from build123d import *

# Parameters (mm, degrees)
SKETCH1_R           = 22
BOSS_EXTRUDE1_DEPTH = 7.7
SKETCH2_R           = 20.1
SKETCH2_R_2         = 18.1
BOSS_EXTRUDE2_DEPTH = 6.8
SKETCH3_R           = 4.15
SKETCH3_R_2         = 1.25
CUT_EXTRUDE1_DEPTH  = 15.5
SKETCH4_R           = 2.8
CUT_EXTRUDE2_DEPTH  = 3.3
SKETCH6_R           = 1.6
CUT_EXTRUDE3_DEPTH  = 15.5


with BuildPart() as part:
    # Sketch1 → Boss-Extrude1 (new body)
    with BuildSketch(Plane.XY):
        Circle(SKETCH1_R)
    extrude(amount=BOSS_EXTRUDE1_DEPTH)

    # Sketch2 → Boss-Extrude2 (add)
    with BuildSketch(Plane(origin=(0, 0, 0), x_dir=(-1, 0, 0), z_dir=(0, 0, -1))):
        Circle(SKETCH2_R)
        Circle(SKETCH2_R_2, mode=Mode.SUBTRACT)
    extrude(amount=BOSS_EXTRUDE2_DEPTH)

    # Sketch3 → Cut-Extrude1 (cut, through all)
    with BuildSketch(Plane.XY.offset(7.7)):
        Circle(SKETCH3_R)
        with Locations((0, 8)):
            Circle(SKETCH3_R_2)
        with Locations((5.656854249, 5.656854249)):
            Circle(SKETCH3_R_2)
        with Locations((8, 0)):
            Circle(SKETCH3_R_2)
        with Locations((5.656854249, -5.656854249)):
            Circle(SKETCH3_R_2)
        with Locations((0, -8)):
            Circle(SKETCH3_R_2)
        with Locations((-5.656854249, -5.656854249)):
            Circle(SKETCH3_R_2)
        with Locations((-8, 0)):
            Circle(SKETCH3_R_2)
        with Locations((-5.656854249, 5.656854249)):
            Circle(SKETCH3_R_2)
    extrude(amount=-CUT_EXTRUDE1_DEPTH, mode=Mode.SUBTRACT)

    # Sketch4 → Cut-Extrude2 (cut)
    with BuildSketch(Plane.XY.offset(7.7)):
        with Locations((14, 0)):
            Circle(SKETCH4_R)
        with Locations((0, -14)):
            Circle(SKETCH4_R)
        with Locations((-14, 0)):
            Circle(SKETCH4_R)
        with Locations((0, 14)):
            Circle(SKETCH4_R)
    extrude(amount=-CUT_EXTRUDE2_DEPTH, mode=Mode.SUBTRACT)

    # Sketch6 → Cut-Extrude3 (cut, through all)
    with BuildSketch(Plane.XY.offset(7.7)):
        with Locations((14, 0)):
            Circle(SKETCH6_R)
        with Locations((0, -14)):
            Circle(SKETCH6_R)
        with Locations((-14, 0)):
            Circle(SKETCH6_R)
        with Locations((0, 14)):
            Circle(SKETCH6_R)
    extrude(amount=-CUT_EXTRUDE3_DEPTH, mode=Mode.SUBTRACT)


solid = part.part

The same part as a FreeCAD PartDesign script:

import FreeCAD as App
import Part
import Sketcher

V = App.Vector
Q = App.Units.Quantity

doc = App.newDocument("Part")
body = doc.addObject("PartDesign::Body", "Body")

# Sketch on XY plane
sketch1 = body.newObject("Sketcher::SketchObject", "Sketch")
sketch1.AttachmentSupport = (doc.getObject("XY_Plane"), [""])
sketch1.MapMode = "FlatFace"
sketch1.addGeometry(Part.Circle(V(0, 0, 0), V(0, 0, 1), 22), False)
sketch1.addConstraint(Sketcher.Constraint("Coincident", 0, 3, -1, 1))
sketch1.addConstraint(Sketcher.Constraint("Diameter", 0, Q("44 mm")))
pad1 = body.newObject("PartDesign::Pad", "Pad")
pad1.Profile = sketch1
pad1.Length = 7.7

# Sketch on XY plane
sketch2 = body.newObject("Sketcher::SketchObject", "Sketch001")
sketch2.AttachmentSupport = (doc.getObject("XY_Plane"), [""])
sketch2.MapMode = "FlatFace"
sketch2.addGeometry(Part.Circle(V(0, 0, 0), V(0, 0, 1), 20), False)
sketch2.addGeometry(Part.Circle(V(0, 0, 0), V(0, 0, 1), 18), False)
sketch2.addConstraint(Sketcher.Constraint("Coincident", 0, 3, -1, 1))
sketch2.addConstraint(Sketcher.Constraint("Coincident", 1, 3, -1, 1))
sketch2.addConstraint(Sketcher.Constraint("Diameter", 0, Q("40.2 mm")))
sketch2.addConstraint(Sketcher.Constraint("Diameter", 1, Q("36.2 mm")))
pad2 = body.newObject("PartDesign::Pad", "Pad001")
pad2.Profile = sketch2
pad2.Length = 6.8
pad2.Reversed = True

# Sketch on XY plane
sketch3 = body.newObject("Sketcher::SketchObject", "Sketch002")
sketch3.AttachmentSupport = (doc.getObject("XY_Plane"), [""])
sketch3.MapMode = "FlatFace"
sketch3.AttachmentOffset = App.Placement(V(0, 0, 7.7), App.Rotation())
sketch3.addGeometry(Part.Circle(V(0, 0, 0), V(0, 0, 1), 4.2), False)
sketch3.addGeometry(Part.Circle(V(0, 8, 0), V(0, 0, 1), 1.2), False)
sketch3.addGeometry(Part.Circle(V(5.7, 5.7, 0), V(0, 0, 1), 1.2), False)
sketch3.addGeometry(Part.Circle(V(8, 0, 0), V(0, 0, 1), 1.2), False)
sketch3.addGeometry(Part.Circle(V(5.7, -5.7, 0), V(0, 0, 1), 1.2), False)
sketch3.addGeometry(Part.Circle(V(0, -8, 0), V(0, 0, 1), 1.2), False)
sketch3.addGeometry(Part.Circle(V(-5.7, -5.7, 0), V(0, 0, 1), 1.2), False)
sketch3.addGeometry(Part.Circle(V(-8, 0, 0), V(0, 0, 1), 1.2), False)
sketch3.addGeometry(Part.Circle(V(-5.7, 5.7, 0), V(0, 0, 1), 1.2), False)
sketch3.addConstraint(Sketcher.Constraint("Coincident", 0, 3, -1, 1))
sketch3.addConstraint(Sketcher.Constraint("Equal", 1, 2))
sketch3.addConstraint(Sketcher.Constraint("Equal", 2, 3))
sketch3.addConstraint(Sketcher.Constraint("Equal", 3, 4))
sketch3.addConstraint(Sketcher.Constraint("Equal", 4, 5))
sketch3.addConstraint(Sketcher.Constraint("Equal", 5, 6))
sketch3.addConstraint(Sketcher.Constraint("Equal", 6, 7))
sketch3.addConstraint(Sketcher.Constraint("Equal", 7, 8))
sketch3.addConstraint(Sketcher.Constraint("Symmetric", 1, 3, 5, 3, -1, 1))
sketch3.addConstraint(Sketcher.Constraint("Symmetric", 2, 3, 6, 3, -1, 1))
sketch3.addConstraint(Sketcher.Constraint("Symmetric", 3, 3, 7, 3, -1, 1))
sketch3.addConstraint(Sketcher.Constraint("Symmetric", 4, 3, 8, 3, -1, 1))
sketch3.addConstraint(Sketcher.Constraint("Symmetric", 4, 3, 6, 3, -2))
sketch3.addConstraint(Sketcher.Constraint("PointOnObject", 1, 3, -2))
sketch3.addConstraint(Sketcher.Constraint("PointOnObject", 3, 3, -1))
sketch3.addConstraint(Sketcher.Constraint("Diameter", 0, Q("8.3 mm")))
sketch3.addConstraint(Sketcher.Constraint("Diameter", 1, Q("2.5 mm")))
sketch3.addConstraint(Sketcher.Constraint("DistanceY", -1, 1, 1, 3, Q("8 mm")))
sketch3.addConstraint(Sketcher.Constraint("DistanceX", -1, 1, 3, 3, Q("8 mm")))
sketch3.addConstraint(Sketcher.Constraint("DistanceY", 4, 3, 2, 3, Q("11.313708 mm")))
sketch3.addConstraint(Sketcher.Constraint("DistanceX", 6, 3, 4, 3, Q("11.313708 mm")))
pocket1 = body.newObject("PartDesign::Pocket", "Pocket")
pocket1.Profile = sketch3
pocket1.Type = "ThroughAll"

# Sketch on XY plane
sketch4 = body.newObject("Sketcher::SketchObject", "Sketch003")
sketch4.AttachmentSupport = (doc.getObject("XY_Plane"), [""])
sketch4.MapMode = "FlatFace"
sketch4.AttachmentOffset = App.Placement(V(0, 0, 7.7), App.Rotation())
sketch4.addGeometry(Part.Circle(V(14, 0, 0), V(0, 0, 1), 2.8), False)
sketch4.addGeometry(Part.Circle(V(0, -14, 0), V(0, 0, 1), 2.8), False)
sketch4.addGeometry(Part.Circle(V(-14, 0, 0), V(0, 0, 1), 2.8), False)
sketch4.addGeometry(Part.Circle(V(0, 14, 0), V(0, 0, 1), 2.8), False)
sketch4.addConstraint(Sketcher.Constraint("Equal", 0, 1))
sketch4.addConstraint(Sketcher.Constraint("Equal", 1, 2))
sketch4.addConstraint(Sketcher.Constraint("Equal", 2, 3))
sketch4.addConstraint(Sketcher.Constraint("Symmetric", 0, 3, 2, 3, -1, 1))
sketch4.addConstraint(Sketcher.Constraint("Symmetric", 1, 3, 3, 3, -1, 1))
sketch4.addConstraint(Sketcher.Constraint("PointOnObject", 0, 3, -1))
sketch4.addConstraint(Sketcher.Constraint("PointOnObject", 1, 3, -2))
sketch4.addConstraint(Sketcher.Constraint("Diameter", 0, Q("5.6 mm")))
sketch4.addConstraint(Sketcher.Constraint("DistanceX", -1, 1, 0, 3, Q("14 mm")))
sketch4.addConstraint(Sketcher.Constraint("DistanceY", 1, 3, -1, 1, Q("14 mm")))
pocket2 = body.newObject("PartDesign::Pocket", "Pocket001")
pocket2.Profile = sketch4
pocket2.Length = 3.3

# Sketch on XY plane
sketch5 = body.newObject("Sketcher::SketchObject", "Sketch004")
sketch5.AttachmentSupport = (doc.getObject("XY_Plane"), [""])
sketch5.MapMode = "FlatFace"
sketch5.AttachmentOffset = App.Placement(V(0, 0, 7.7), App.Rotation())
sketch5.addGeometry(Part.Circle(V(14, 0, 0), V(0, 0, 1), 1.6), False)
sketch5.addGeometry(Part.Circle(V(0, -14, 0), V(0, 0, 1), 1.6), False)
sketch5.addGeometry(Part.Circle(V(-14, 0, 0), V(0, 0, 1), 1.6), False)
sketch5.addGeometry(Part.Circle(V(0, 14, 0), V(0, 0, 1), 1.6), False)
sketch5.addConstraint(Sketcher.Constraint("Equal", 0, 1))
sketch5.addConstraint(Sketcher.Constraint("Equal", 1, 2))
sketch5.addConstraint(Sketcher.Constraint("Equal", 2, 3))
sketch5.addConstraint(Sketcher.Constraint("Symmetric", 0, 3, 2, 3, -1, 1))
sketch5.addConstraint(Sketcher.Constraint("Symmetric", 1, 3, 3, 3, -1, 1))
sketch5.addConstraint(Sketcher.Constraint("PointOnObject", 0, 3, -1))
sketch5.addConstraint(Sketcher.Constraint("PointOnObject", 1, 3, -2))
sketch5.addConstraint(Sketcher.Constraint("Diameter", 0, Q("3.2 mm")))
sketch5.addConstraint(Sketcher.Constraint("DistanceX", -1, 1, 0, 3, Q("14 mm")))
sketch5.addConstraint(Sketcher.Constraint("DistanceY", 1, 3, -1, 1, Q("14 mm")))
pocket3 = body.newObject("PartDesign::Pocket", "Pocket002")
pocket3.Profile = sketch5
pocket3.Type = "ThroughAll"

doc.recompute()
